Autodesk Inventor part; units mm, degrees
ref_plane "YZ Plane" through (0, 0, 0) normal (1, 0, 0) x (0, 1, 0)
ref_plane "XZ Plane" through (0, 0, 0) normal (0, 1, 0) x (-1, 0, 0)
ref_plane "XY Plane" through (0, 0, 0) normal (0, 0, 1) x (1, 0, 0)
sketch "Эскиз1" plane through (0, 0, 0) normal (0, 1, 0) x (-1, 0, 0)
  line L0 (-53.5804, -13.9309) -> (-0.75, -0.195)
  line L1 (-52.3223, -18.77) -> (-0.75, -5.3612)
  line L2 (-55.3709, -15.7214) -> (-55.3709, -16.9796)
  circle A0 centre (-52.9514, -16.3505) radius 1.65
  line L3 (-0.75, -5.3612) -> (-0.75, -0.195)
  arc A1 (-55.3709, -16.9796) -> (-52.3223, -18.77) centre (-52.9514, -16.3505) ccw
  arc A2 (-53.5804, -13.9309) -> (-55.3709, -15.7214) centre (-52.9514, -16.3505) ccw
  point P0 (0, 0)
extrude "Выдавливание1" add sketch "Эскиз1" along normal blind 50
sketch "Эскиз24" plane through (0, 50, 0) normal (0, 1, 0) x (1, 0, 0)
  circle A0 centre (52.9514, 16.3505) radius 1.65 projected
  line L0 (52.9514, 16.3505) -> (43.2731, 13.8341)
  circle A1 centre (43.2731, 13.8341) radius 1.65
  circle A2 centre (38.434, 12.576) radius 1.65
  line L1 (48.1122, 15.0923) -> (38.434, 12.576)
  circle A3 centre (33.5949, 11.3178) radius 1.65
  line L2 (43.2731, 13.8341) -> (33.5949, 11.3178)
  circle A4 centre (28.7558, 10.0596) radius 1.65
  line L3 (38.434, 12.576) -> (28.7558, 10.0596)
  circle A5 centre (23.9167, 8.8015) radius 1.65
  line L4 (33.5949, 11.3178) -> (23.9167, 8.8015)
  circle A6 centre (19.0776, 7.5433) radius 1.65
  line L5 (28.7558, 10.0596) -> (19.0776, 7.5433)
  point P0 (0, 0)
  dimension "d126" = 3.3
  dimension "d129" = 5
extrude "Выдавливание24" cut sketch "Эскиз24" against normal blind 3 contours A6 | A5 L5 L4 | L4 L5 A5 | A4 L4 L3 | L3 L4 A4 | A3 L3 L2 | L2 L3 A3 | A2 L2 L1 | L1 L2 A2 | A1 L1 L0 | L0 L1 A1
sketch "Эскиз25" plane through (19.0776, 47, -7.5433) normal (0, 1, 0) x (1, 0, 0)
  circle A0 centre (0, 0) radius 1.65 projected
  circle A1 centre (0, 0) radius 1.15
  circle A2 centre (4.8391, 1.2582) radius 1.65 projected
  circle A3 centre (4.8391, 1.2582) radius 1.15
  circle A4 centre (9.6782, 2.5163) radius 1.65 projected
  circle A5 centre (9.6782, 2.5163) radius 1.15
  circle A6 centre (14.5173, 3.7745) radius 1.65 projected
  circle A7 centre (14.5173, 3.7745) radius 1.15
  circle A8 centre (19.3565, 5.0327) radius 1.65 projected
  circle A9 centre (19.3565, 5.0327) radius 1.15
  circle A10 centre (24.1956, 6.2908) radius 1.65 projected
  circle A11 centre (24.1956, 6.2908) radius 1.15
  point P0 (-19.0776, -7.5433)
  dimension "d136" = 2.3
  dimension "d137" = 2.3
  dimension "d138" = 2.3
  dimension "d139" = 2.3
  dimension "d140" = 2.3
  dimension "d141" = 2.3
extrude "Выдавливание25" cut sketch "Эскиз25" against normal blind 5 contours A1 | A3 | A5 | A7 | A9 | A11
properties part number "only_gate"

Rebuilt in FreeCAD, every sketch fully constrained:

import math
import FreeCAD as App
import Part
import Sketcher
from FreeCAD import Vector

doc = App.newDocument("Part")
body = doc.addObject("PartDesign::Body", "Body")

# Sketch on XZ plane
sketch1 = body.newObject("Sketcher::SketchObject", "Sketch")
sketch1.AttachmentSupport = (doc.getObject("XZ_Plane"), [""])
sketch1.MapMode = "FlatFace"
sketch1.addGeometry([
    Part.LineSegment(Vector(0.75, -0.195, 0), Vector(53.5804, -13.9309, 0)),  # 0
    Part.ArcOfCircle(Part.Circle(Vector(52.9514, -16.3505, 0), Vector(0, 0, 1), 2.499949), math.radians(14.574882), math.radians(75.427913)),  # 1
    Part.LineSegment(Vector(55.3709, -15.7214, 0), Vector(55.3709, -16.9796, 0)),  # 2
    Part.ArcOfCircle(Part.Circle(Vector(52.9514, -16.3505, 0), Vector(0, 0, 1), 2.499949), math.radians(-104.574882), math.radians(-14.574882)),  # 3
    Part.LineSegment(Vector(52.3223, -18.77, 0), Vector(0.75, -5.3612, 0)),  # 4
    Part.LineSegment(Vector(0.75, -5.3612, 0), Vector(0.75, -0.195, 0)),  # 5
    Part.Circle(Vector(52.9514, -16.3505, 0), Vector(0, 0, 1), 1.65),  # 6
], False)
sketch1.addConstraint([
    Sketcher.Constraint("Tangent", 0, 2, 1, 2),
    Sketcher.Constraint("Coincident", 1, 1, 2, 1),
    Sketcher.Constraint("Coincident", 2, 2, 3, 2),
    Sketcher.Constraint("Tangent", 3, 1, 4, 1),
    Sketcher.Constraint("Coincident", 4, 2, 5, 1),
    Sketcher.Constraint("Coincident", 5, 2, 0, 1),
    Sketcher.Constraint("Vertical", 2),
    Sketcher.Constraint("Vertical", 5),
    Sketcher.Constraint("Coincident", 3, 3, 1, 3),
    Sketcher.Constraint("Coincident", 6, 3, 1, 3),
    Sketcher.Constraint("Equal", 1, 3),
    Sketcher.Constraint("Parallel", 0, 4),
    Sketcher.Constraint("Diameter", 6, 3.3),
    Sketcher.Constraint("Radius", 1, 2.5),
    Sketcher.Constraint("DistanceY", 3, 1, -1, 1, 18.77),
    Sketcher.Constraint("DistanceX", -1, 1, 4, 2, 0.75),
    Sketcher.Constraint("Distance", 4, 53.287),
    Sketcher.Constraint("DistanceY", 2, 2, 2, 1, 1.2582),
    Sketcher.Constraint("DistanceY", 5, 1, 5, 2, 5.1662),
])
pad1 = body.newObject("PartDesign::Pad", "Pad")
pad1.Profile = sketch1
pad1.Length = 50
pad1.Reversed = True

# Sketch on XZ plane
sketch2 = body.newObject("Sketcher::SketchObject", "Sketch001")
sketch2.AttachmentSupport = (doc.getObject("XZ_Plane"), [""])
sketch2.MapMode = "FlatFace"
sketch2.AttachmentOffset = App.Placement(Vector(0, 0, -50), App.Rotation())
sketch2.addGeometry([
    Part.Circle(Vector(19.0776, -7.5433, 0), Vector(0, 0, 1), 1.65),  # 0
    Part.Circle(Vector(23.9167, -8.8015, 0), Vector(0, 0, 1), 1.65),  # 1
    Part.Circle(Vector(28.7558, -10.0596, 0), Vector(0, 0, 1), 1.65),  # 2
    Part.Circle(Vector(33.5949, -11.3178, 0), Vector(0, 0, 1), 1.65),  # 3
    Part.Circle(Vector(38.434, -12.576, 0), Vector(0, 0, 1), 1.65),  # 4
    Part.Circle(Vector(43.2731, -13.8341, 0), Vector(0, 0, 1), 1.65),  # 5
], False)
sketch2.addConstraint([
    Sketcher.Constraint("Equal", 0, 1),
    Sketcher.Constraint("Equal", 1, 2),
    Sketcher.Constraint("Equal", 2, 3),
    Sketcher.Constraint("Equal", 3, 4),
    Sketcher.Constraint("Equal", 4, 5),
    Sketcher.Constraint("Diameter", 0, 3.3),
    Sketcher.Constraint("DistanceX", -1, 1, 3, 3, 33.595),
    Sketcher.Constraint("DistanceX", -1, 1, 4, 3, 38.434),
    Sketcher.Constraint("DistanceY", 4, 3, -1, 1, 12.576),
    Sketcher.Constraint("DistanceX", -1, 1, 5, 3, 43.273),
    Sketcher.Constraint("DistanceY", 5, 3, -1, 1, 13.834),
    Sketcher.Constraint("DistanceX", 0, 3, 1, 3, 4.839),
    Sketcher.Constraint("DistanceX", 1, 3, 2, 3, 4.839),
    Sketcher.Constraint("DistanceY", 2, 3, 1, 3, 1.258),
    Sketcher.Constraint("DistanceX", 2, 3, 3, 3, 4.839),
    Sketcher.Constraint("DistanceY", 0, 3, -1, 1, 7.5433),
    Sketcher.Constraint("DistanceY", 1, 3, -1, 1, 8.8015),
    Sketcher.Constraint("DistanceY", 3, 3, -1, 1, 11.3178),
])
pocket1 = body.newObject("PartDesign::Pocket", "Pocket")
pocket1.Profile = sketch2
pocket1.Length = 3
pocket1.Reversed = True

# Sketch on XZ plane
sketch3 = body.newObject("Sketcher::SketchObject", "Sketch002")
sketch3.AttachmentSupport = (doc.getObject("XZ_Plane"), [""])
sketch3.MapMode = "FlatFace"
sketch3.AttachmentOffset = App.Placement(Vector(0, 0, -47), App.Rotation())
sketch3.addGeometry([
    Part.Circle(Vector(19.0776, -7.5433, 0), Vector(0, 0, 1), 1.15),  # 0
    Part.Circle(Vector(23.9167, -8.8015, 0), Vector(0, 0, 1), 1.15),  # 1
    Part.Circle(Vector(28.7558, -10.0596, 0), Vector(0, 0, 1), 1.15),  # 2
    Part.Circle(Vector(33.5949, -11.3178, 0), Vector(0, 0, 1), 1.15),  # 3
    Part.Circle(Vector(38.4341, -12.576, 0), Vector(0, 0, 1), 1.15),  # 4
    Part.Circle(Vector(43.2732, -13.8341, 0), Vector(0, 0, 1), 1.15),  # 5
], False)
sketch3.addConstraint([
    Sketcher.Constraint("Equal", 0, 1),
    Sketcher.Constraint("Equal", 1, 2),
    Sketcher.Constraint("Equal", 2, 3),
    Sketcher.Constraint("Equal", 3, 4),
    Sketcher.Constraint("Equal", 4, 5),
    Sketcher.Constraint("Diameter", 0, 2.3),
    Sketcher.Constraint("DistanceX", -1, 1, 3, 3, 33.595),
    Sketcher.Constraint("DistanceX", -1, 1, 4, 3, 38.434),
    Sketcher.Constraint("DistanceY", 4, 3, -1, 1, 12.576),
    Sketcher.Constraint("DistanceY", 5, 3, -1, 1, 13.834),
    Sketcher.Constraint("DistanceX", 0, 3, 1, 3, 4.839),
    Sketcher.Constraint("DistanceX", 1, 3, 2, 3, 4.839),
    Sketcher.Constraint("DistanceY", 2, 3, 1, 3, 1.258),
    Sketcher.Constraint("DistanceX", 2, 3, 3, 3, 4.839),
    Sketcher.Constraint("DistanceX", 4, 3, 5, 3, 4.839),
    Sketcher.Constraint("DistanceY", 0, 3, -1, 1, 7.5433),
    Sketcher.Constraint("DistanceY", 1, 3, -1, 1, 8.8015),
    Sketcher.Constraint("DistanceY", 3, 3, -1, 1, 11.3178),
])
pocket2 = body.newObject("PartDesign::Pocket", "Pocket001")
pocket2.Profile = sketch3
pocket2.Length = 5
pocket2.Reversed = True

doc.recompute()
